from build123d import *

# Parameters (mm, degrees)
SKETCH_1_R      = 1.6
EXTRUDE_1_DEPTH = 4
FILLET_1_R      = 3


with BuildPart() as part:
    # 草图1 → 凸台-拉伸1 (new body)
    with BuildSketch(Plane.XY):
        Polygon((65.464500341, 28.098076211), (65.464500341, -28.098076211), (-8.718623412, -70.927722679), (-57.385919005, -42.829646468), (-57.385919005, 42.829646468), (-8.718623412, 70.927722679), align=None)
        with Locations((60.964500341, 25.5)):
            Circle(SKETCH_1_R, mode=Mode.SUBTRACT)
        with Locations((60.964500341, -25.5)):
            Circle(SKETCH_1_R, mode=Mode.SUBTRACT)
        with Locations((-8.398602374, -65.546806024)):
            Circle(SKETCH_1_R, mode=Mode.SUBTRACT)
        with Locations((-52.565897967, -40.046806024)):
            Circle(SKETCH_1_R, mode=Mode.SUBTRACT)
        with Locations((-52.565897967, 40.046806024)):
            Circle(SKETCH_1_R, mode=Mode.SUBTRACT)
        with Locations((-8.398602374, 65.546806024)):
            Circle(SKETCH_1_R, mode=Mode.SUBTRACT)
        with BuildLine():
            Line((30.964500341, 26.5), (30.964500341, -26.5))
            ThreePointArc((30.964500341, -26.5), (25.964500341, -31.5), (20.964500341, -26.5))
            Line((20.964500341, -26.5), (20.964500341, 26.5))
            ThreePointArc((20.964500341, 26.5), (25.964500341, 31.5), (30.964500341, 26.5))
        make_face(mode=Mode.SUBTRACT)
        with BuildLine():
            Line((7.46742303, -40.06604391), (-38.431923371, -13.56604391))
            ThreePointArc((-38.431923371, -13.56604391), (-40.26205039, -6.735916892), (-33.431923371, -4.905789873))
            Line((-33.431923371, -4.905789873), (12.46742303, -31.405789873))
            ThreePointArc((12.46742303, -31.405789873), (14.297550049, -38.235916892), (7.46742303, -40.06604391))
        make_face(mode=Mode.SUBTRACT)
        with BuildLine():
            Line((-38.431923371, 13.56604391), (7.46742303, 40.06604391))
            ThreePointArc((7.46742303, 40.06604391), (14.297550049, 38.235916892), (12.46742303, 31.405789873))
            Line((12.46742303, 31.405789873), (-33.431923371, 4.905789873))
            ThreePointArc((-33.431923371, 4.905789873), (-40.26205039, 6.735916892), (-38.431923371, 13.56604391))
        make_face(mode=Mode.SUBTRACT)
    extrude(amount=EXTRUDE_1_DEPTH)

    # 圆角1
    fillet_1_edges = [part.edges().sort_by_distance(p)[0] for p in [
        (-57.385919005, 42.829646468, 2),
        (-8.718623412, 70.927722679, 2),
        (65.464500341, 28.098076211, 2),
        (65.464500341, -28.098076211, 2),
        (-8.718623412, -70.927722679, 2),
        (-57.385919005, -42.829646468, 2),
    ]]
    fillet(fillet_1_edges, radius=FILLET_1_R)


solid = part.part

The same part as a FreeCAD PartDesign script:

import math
import FreeCAD as App
import Part
import Sketcher

V = App.Vector
Q = App.Units.Quantity


def edges_at(feature, points):
    """Names of the edges that pass closest to the given points."""
    edges = feature.Shape.Edges
    near = lambda p: min(range(len(edges)), key=lambda i: edges[i].distToShape(Part.Vertex(*p))[0])
    return sorted({f"Edge{near(p) + 1}" for p in points})

doc = App.newDocument("Part")
body = doc.addObject("PartDesign::Body", "Body")

sketch1 = body.newObject("Sketcher::SketchObject", "Sketch")
sketch1.AttachmentSupport = (doc.getObject("XY_Plane"), [""])
sketch1.MapMode = "FlatFace"
sketch1.addGeometry([
    Part.LineSegment(V(65.5, -28.1, 0), V(65.5, 28.1, 0)),
    Part.LineSegment(V(65.5, 28.1, 0), V(-8.7, 70.9, 0)),
    Part.LineSegment(V(-8.7, 70.9, 0), V(-57.4, 42.8, 0)),
    Part.LineSegment(V(-57.4, 42.8, 0), V(-57.4, -42.8, 0)),
    Part.LineSegment(V(-57.4, -42.8, 0), V(-8.7, -70.9, 0)),
    Part.LineSegment(V(-8.7, -70.9, 0), V(65.5, -28.1, 0)),
    Part.Circle(V(61, -25.5, 0), V(0, 0, 1), 1.6),
    Part.LineSegment(V(31, 26.5, 0), V(31, -26.5, 0)),
    Part.ArcOfCircle(Part.Circle(V(26, -26.5, 0), V(0, 0, 1), 5), math.radians(180), math.radians(360)),
    Part.LineSegment(V(21, -26.5, 0), V(21, 26.5, 0)),
    Part.ArcOfCircle(Part.Circle(V(26, 26.5, 0), V(0, 0, 1), 5), math.radians(0), math.radians(180)),
    Part.Circle(V(-8.4, -65.5, 0), V(0, 0, 1), 1.6),
    Part.Circle(V(-52.6, -40, 0), V(0, 0, 1), 1.6),
    Part.LineSegment(V(7.5, -40.1, 0), V(-38.4, -13.6, 0)),
    Part.ArcOfCircle(Part.Circle(V(-35.9, -9.2, 0), V(0, 0, 1), 5), math.radians(60), math.radians(240)),
    Part.LineSegment(V(-33.4, -4.9, 0), V(12.5, -31.4, 0)),
    Part.ArcOfCircle(Part.Circle(V(10, -35.7, 0), V(0, 0, 1), 5), math.radians(-120), math.radians(60)),
    Part.Circle(V(61, 25.5, 0), V(0, 0, 1), 1.6),
    Part.LineSegment(V(-38.4, 13.6, 0), V(7.5, 40.1, 0)),
    Part.ArcOfCircle(Part.Circle(V(10, 35.7, 0), V(0, 0, 1), 5), math.radians(-60), math.radians(120)),
    Part.LineSegment(V(12.5, 31.4, 0), V(-33.4, 4.9, 0)),
    Part.ArcOfCircle(Part.Circle(V(-35.9, 9.2, 0), V(0, 0, 1), 5), math.radians(120), math.radians(300)),
    Part.Circle(V(-8.4, 65.5, 0), V(0, 0, 1), 1.6),
    Part.Circle(V(-52.6, 40, 0), V(0, 0, 1), 1.6),
], False)
sketch1.addConstraint([
    Sketcher.Constraint("Coincident", 0, 2, 1, 1),
    Sketcher.Constraint("Coincident", 1, 2, 2, 1),
    Sketcher.Constraint("Coincident", 2, 2, 3, 1),
    Sketcher.Constraint("Coincident", 3, 2, 4, 1),
    Sketcher.Constraint("Coincident", 4, 2, 5, 1),
    Sketcher.Constraint("Coincident", 5, 2, 0, 1),
    Sketcher.Constraint("Tangent", 7, 2, 8, 2),
    Sketcher.Constraint("Tangent", 8, 1, 9, 1),
    Sketcher.Constraint("Tangent", 9, 2, 10, 2),
    Sketcher.Constraint("Tangent", 10, 1, 7, 1),
    Sketcher.Constraint("Tangent", 13, 2, 14, 2),
    Sketcher.Constraint("Tangent", 14, 1, 15, 1),
    Sketcher.Constraint("Tangent", 15, 2, 16, 2),
    Sketcher.Constraint("Tangent", 16, 1, 13, 1),
    Sketcher.Constraint("Tangent", 18, 2, 19, 2),
    Sketcher.Constraint("Tangent", 19, 1, 20, 1),
    Sketcher.Constraint("Tangent", 20, 2, 21, 2),
    Sketcher.Constraint("Tangent", 21, 1, 18, 1),
    Sketcher.Constraint("Vertical", 0),
    Sketcher.Constraint("Vertical", 3),
    Sketcher.Constraint("Vertical", 7),
    Sketcher.Constraint("Vertical", 9),
    Sketcher.Constraint("Equal", 6, 11),
    Sketcher.Constraint("Equal", 11, 12),
    Sketcher.Constraint("Equal", 10, 14),
    Sketcher.Constraint("Equal", 14, 16),
    Sketcher.Constraint("Equal", 12, 17),
    Sketcher.Constraint("Equal", 16, 19),
    Sketcher.Constraint("Equal", 19, 21),
    Sketcher.Constraint("Equal", 17, 22),
    Sketcher.Constraint("Equal", 22, 23),
    Sketcher.Constraint("Symmetric", 6, 3, 17, 3, -1),
    Sketcher.Constraint("Symmetric", 16, 3, 19, 3, -1),
    Sketcher.Constraint("Symmetric", 14, 3, 21, 3, -1),
    Sketcher.Constraint("Symmetric", 11, 3, 22, 3, -1),
    Sketcher.Constraint("Symmetric", 12, 3, 23, 3, -1),
    Sketcher.Constraint("Symmetric", 1, 2, 4, 2, -1),
    Sketcher.Constraint("Parallel", 1, 4),
    Sketcher.Constraint("Parallel", 2, 5),
    Sketcher.Constraint("Parallel", 4, 13),
    Sketcher.Constraint("Parallel", 5, 18),
    Sketcher.Constraint("Radius", 8, Q("5 mm")),
    Sketcher.Constraint("Diameter", 6, Q("3.2 mm")),
    Sketcher.Constraint("DistanceY", 7, 2, 7, 1, Q("53 mm")),
    Sketcher.Constraint("Angle", 1, Q("150 deg")),
    Sketcher.Constraint("Distance", 13, Q("53 mm")),
    Sketcher.Constraint("DistanceX", 8, 3, 6, 3, Q("35 mm")),
    Sketcher.Constraint("DistanceY", 8, 3, 6, 3, Q("1 mm")),
    Sketcher.Constraint("DistanceY", 17, 3, 10, 3, Q("1 mm")),
    Sketcher.Constraint("DistanceY", 11, 3, 12, 3, Q("25.5 mm")),
    Sketcher.Constraint("DistanceX", 17, 3, 0, 2, Q("4.5 mm")),
    Sketcher.Constraint("DistanceX", -1, 1, 6, 3, Q("60.9645 mm")),
    Sketcher.Constraint("DistanceX", 12, 3, 8, 3, Q("78.530398 mm")),
    Sketcher.Constraint("DistanceX", 21, 3, 1, 2, Q("27.2133 mm")),
    Sketcher.Constraint("DistanceY", 0, 1, 0, 2, Q("56.196152 mm")),
    Sketcher.Constraint("DistanceY", 3, 2, 3, 1, Q("85.659293 mm")),
    Sketcher.Constraint("DistanceX", 2, 2, -1, 1, Q("57.385919 mm")),
    Sketcher.Constraint("DistanceY", 14, 1, -1, 1, Q("4.90579 mm")),
    Sketcher.Constraint("DistanceY", 12, 3, 14, 3, Q("30.810889 mm")),
    Sketcher.Constraint("DistanceX", 14, 3, 11, 3, Q("27.533321 mm")),
])
pad1 = body.newObject("PartDesign::Pad", "Pad")
pad1.Profile = sketch1
pad1.Length = 4
doc.recompute()

fillet = body.newObject("PartDesign::Fillet", "Fillet")
fillet.Base = (pad1, edges_at(pad1, [
    (-57.386, 42.83, 2),
    (-8.719, 70.928, 2),
    (65.465, 28.098, 2),
    (65.465, -28.098, 2),
    (-8.719, -70.928, 2),
    (-57.386, -42.83, 2),
]))
fillet.Radius = 3

doc.recompute()
